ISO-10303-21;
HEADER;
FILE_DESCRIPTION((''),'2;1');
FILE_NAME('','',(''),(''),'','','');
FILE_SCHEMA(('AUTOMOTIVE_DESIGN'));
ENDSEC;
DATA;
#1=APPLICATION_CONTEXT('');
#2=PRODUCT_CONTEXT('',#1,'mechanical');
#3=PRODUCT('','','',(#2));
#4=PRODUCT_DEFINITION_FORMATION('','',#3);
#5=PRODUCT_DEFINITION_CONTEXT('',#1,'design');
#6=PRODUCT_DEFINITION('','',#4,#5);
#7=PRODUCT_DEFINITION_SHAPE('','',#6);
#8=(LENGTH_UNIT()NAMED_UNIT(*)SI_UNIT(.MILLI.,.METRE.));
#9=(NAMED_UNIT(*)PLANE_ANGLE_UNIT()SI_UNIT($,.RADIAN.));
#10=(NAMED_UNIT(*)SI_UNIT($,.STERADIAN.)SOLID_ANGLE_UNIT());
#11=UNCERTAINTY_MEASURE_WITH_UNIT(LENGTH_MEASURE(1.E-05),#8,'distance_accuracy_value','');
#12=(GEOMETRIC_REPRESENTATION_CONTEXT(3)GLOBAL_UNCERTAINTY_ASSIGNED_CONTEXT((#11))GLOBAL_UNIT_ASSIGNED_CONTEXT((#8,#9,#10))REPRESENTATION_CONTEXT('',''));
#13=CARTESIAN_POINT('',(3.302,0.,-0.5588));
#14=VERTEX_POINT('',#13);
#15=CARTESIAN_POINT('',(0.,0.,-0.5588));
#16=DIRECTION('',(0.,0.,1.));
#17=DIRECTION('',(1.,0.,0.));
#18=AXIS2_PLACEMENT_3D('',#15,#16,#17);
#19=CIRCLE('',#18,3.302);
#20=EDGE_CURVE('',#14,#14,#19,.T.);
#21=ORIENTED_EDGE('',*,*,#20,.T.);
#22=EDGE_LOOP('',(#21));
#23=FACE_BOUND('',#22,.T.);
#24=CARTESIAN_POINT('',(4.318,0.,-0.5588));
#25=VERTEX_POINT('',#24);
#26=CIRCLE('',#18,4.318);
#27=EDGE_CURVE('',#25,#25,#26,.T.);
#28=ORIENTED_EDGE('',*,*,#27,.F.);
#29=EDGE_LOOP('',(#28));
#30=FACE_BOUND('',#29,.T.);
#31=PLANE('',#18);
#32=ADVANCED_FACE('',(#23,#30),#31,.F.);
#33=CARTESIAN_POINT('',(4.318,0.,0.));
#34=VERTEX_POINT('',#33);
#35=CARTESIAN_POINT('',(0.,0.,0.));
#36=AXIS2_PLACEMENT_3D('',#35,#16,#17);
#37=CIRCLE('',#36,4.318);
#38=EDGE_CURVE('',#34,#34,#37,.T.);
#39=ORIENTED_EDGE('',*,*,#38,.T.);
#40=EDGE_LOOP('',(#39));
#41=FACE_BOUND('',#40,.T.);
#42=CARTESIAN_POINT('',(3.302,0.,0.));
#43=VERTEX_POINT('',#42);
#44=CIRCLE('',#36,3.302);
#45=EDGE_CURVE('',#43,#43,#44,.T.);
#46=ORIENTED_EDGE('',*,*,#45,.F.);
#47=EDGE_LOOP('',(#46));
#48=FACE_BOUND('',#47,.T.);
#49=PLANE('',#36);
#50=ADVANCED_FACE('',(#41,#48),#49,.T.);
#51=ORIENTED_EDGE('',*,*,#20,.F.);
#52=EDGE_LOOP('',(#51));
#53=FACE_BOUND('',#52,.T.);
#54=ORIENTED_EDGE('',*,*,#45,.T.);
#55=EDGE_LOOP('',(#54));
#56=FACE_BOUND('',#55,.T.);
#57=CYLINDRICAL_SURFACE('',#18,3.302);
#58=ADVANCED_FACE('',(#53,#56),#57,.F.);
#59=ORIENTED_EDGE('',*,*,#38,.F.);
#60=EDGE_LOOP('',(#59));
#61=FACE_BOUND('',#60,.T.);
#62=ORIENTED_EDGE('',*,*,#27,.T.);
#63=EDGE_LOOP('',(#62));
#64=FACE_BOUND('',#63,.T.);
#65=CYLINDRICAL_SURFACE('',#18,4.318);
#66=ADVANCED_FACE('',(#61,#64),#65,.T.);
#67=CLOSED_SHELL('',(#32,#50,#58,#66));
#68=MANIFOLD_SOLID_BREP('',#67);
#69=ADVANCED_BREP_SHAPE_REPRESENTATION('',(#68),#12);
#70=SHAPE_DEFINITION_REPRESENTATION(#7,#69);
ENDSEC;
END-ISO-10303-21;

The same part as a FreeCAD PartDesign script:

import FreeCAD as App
import Part
import Sketcher
Q = App.Units.Quantity

doc = App.newDocument("Part")
params = doc.addObject("Spreadsheet::Sheet", "Params")
for row, (alias, value) in enumerate([
    ("sketch1_diameter", "0.34 in"),
    ("sketch1_diameter2", "0.26 in"),
    ("pad1_length", "0.022 in"),
], start=1):
    params.set(f"A{row}", alias)
    params.set(f"B{row}", "=" + value)
    params.setAlias(f"B{row}", alias)

body = doc.addObject("PartDesign::Body", "Body")

sketch1 = body.newObject("Sketcher::SketchObject", "Sketch")
sketch1.AttachmentSupport = (doc.getObject("XY_Plane"), [""])
sketch1.MapMode = "FlatFace"
sketch1.addGeometry([
    Part.Circle(App.Vector(0, 0, 0), App.Vector(0, 0, 1), 4.3),
    Part.Circle(App.Vector(0, 0, 0), App.Vector(0, 0, 1), 3.3),
], False)
sketch1.addConstraint([
    Sketcher.Constraint("Coincident", 0, 3, -1, 1),
    Sketcher.Constraint("Coincident", 1, 3, -1, 1),
    Sketcher.Constraint("Diameter", 0, Q("0.34 in")),
    Sketcher.Constraint("Diameter", 1, Q("0.26 in")),
])
sketch1.setExpression("Constraints[2]", "Params.sketch1_diameter")
sketch1.setExpression("Constraints[3]", "Params.sketch1_diameter2")
pad1 = body.newObject("PartDesign::Pad", "Pad")
pad1.Profile = sketch1
pad1.setExpression("Length", "Params.pad1_length")
pad1.Reversed = True

doc.recompute()
